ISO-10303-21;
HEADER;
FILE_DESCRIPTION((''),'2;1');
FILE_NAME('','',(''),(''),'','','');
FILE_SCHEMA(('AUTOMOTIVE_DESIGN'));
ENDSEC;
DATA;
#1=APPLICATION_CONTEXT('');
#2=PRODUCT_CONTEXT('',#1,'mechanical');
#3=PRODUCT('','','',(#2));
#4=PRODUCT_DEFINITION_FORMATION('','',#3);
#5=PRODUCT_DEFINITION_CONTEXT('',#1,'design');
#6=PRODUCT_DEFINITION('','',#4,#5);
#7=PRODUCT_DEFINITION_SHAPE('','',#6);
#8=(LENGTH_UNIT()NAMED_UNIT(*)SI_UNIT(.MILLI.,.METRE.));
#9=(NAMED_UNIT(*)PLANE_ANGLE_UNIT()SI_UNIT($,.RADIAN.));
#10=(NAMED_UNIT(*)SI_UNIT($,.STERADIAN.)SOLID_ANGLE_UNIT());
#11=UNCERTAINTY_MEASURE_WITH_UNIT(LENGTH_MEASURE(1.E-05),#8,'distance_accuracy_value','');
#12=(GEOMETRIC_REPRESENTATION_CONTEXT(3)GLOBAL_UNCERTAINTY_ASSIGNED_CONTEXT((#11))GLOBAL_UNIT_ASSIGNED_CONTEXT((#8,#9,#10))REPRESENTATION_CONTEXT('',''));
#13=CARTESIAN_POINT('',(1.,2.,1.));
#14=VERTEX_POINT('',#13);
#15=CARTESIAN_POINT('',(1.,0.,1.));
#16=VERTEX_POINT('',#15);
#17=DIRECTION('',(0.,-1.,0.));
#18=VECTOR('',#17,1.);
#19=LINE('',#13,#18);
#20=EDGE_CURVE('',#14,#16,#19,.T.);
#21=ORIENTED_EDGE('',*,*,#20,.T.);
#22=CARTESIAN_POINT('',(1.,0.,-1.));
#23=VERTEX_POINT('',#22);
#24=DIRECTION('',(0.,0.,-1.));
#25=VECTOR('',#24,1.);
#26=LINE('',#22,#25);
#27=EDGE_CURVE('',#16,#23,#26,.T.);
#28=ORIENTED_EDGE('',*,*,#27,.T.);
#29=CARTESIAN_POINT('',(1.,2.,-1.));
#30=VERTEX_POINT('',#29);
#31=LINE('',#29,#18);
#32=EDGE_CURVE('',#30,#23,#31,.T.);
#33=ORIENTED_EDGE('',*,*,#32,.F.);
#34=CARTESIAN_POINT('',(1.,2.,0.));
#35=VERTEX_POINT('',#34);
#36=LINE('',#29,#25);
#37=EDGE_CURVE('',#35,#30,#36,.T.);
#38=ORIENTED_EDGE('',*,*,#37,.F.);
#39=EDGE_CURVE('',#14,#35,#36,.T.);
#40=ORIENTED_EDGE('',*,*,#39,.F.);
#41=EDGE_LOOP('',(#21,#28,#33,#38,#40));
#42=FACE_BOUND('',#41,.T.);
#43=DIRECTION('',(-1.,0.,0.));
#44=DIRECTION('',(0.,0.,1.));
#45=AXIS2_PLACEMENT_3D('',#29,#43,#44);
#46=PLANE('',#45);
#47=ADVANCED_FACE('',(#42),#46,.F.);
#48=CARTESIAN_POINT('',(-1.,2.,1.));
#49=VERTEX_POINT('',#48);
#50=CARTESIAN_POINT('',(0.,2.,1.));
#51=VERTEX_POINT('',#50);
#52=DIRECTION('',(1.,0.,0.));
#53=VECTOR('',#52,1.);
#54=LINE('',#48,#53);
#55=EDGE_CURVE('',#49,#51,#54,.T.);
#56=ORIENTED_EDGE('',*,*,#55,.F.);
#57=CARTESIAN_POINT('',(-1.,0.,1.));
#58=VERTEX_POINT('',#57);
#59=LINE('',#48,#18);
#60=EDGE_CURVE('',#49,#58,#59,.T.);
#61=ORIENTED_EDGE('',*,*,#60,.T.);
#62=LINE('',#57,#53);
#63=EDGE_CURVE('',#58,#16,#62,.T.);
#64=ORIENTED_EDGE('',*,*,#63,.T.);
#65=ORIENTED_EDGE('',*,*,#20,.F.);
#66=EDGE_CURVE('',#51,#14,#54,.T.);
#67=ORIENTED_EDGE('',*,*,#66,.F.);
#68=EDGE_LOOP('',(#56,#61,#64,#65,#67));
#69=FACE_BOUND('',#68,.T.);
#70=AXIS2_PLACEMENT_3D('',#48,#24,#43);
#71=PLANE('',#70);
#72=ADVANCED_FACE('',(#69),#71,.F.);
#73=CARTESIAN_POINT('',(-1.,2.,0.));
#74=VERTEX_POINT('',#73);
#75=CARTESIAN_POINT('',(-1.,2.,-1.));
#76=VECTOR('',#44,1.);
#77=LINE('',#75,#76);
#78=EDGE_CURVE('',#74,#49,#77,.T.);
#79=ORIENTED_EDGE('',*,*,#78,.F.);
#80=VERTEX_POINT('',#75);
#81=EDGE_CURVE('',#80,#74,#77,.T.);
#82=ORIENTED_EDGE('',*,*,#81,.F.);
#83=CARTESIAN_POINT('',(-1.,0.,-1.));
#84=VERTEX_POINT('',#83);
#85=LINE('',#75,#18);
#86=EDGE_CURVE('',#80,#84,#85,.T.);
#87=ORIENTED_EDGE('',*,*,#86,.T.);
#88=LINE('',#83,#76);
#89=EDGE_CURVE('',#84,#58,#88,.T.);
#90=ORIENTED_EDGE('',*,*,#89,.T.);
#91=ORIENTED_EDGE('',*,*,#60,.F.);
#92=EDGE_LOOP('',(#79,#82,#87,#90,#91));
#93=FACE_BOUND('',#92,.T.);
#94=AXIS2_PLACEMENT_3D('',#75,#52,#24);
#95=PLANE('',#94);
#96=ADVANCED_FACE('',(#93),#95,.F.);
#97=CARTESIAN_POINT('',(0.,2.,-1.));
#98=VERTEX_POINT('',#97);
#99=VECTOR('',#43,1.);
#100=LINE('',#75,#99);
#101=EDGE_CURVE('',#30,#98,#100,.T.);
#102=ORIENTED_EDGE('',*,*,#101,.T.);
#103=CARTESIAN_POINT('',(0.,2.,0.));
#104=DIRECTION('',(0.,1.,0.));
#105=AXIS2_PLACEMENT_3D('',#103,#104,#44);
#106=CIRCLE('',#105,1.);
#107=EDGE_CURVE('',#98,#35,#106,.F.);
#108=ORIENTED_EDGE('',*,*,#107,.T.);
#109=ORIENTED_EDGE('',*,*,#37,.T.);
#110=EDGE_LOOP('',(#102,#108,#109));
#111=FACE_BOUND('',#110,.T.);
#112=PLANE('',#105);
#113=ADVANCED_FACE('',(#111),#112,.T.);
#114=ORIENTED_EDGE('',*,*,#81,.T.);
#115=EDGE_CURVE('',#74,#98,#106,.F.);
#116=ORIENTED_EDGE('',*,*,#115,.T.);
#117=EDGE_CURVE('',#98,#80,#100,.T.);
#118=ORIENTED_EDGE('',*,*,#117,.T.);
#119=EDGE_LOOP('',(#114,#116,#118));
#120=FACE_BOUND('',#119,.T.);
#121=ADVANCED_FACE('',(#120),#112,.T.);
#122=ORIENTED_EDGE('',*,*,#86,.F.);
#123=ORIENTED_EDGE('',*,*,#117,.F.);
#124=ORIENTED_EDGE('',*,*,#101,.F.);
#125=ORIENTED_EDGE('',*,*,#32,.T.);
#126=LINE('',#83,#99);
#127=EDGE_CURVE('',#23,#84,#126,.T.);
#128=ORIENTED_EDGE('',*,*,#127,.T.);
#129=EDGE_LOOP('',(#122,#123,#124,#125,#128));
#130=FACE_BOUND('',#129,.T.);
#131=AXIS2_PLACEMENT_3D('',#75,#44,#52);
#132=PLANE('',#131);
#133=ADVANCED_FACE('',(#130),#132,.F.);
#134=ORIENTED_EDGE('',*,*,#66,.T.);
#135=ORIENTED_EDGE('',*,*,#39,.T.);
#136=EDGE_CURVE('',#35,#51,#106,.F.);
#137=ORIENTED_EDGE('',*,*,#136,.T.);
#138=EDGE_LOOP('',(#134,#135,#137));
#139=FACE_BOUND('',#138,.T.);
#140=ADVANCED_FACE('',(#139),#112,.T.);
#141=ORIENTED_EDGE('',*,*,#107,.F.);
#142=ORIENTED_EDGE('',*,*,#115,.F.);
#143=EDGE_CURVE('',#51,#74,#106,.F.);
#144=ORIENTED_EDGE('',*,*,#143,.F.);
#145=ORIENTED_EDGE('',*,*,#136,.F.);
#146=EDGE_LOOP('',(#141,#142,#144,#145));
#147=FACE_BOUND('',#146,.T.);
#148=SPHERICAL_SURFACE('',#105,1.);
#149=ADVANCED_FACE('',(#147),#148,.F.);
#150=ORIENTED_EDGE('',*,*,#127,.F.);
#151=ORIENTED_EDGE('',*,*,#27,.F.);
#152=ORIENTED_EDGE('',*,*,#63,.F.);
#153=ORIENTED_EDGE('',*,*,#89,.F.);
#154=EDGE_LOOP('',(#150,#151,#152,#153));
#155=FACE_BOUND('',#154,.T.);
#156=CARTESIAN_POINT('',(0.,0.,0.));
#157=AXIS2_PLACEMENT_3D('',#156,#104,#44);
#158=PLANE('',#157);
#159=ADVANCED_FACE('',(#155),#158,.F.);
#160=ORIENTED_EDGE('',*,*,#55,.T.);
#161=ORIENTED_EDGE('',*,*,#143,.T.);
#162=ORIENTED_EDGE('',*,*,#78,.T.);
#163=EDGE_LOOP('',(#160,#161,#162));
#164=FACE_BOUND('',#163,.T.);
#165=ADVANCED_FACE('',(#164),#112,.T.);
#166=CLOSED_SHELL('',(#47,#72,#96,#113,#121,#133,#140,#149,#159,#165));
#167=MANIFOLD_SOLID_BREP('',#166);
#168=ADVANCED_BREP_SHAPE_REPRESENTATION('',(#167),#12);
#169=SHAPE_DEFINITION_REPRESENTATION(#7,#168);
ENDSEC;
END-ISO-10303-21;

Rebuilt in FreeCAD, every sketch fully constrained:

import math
import FreeCAD as App
import Part
import Sketcher

V = App.Vector


def add_polygon(sketch, points):
    """Adds a closed chain of lines whose ends are joined by coincident constraints."""
    first, n = sketch.GeometryCount, len(points)
    for a, b in zip(points, points[1:] + points[:1]):
        sketch.addGeometry(Part.LineSegment(App.Vector(*a, 0), App.Vector(*b, 0)), False)
    for i in range(n):
        sketch.addConstraint(Sketcher.Constraint("Coincident", first + i, 2, first + (i + 1) % n, 1))

doc = App.newDocument("Part")
body = doc.addObject("PartDesign::Body", "Body")

# Sketch on XZ plane
sketch1 = doc.addObject("Sketcher::SketchObject", "Sketch")
body.addObject(sketch1)
sketch1.AttachmentSupport = (doc.XZ_Plane, [""])
sketch1.MapMode = "FlatFace"
add_polygon(sketch1, [(-1, -1), (-1, 1), (1, 1), (1, -1)])  # lines 0-3
sketch1.addConstraint(Sketcher.Constraint("Vertical", 0))
sketch1.addConstraint(Sketcher.Constraint("Horizontal", 1))
sketch1.addConstraint(Sketcher.Constraint("Vertical", 2))
sketch1.addConstraint(Sketcher.Constraint("Horizontal", 3))
sketch1.addConstraint(Sketcher.Constraint("Symmetric", 0, 2, 2, 2, -1, 1))
sketch1.addConstraint(Sketcher.Constraint("Equal", 3, 0))
sketch1.addConstraint(Sketcher.Constraint("DistanceX", 1, 1, 1, 2, 2.0))
pad1 = doc.addObject("PartDesign::Pad", "Pad")
body.addObject(pad1)
pad1.Profile = sketch1
pad1.Length = 2
pad1.Reversed = True

# Sketch on XZ plane
sketch2 = doc.addObject("Sketcher::SketchObject", "Sketch001")
body.addObject(sketch2)
sketch2.AttachmentSupport = (doc.XZ_Plane, [""])
sketch2.MapMode = "FlatFace"
sketch2.AttachmentOffset = App.Placement(V(0, 0, -2), App.Rotation())
sketch2.addGeometry(Part.LineSegment(V(0, 1, 0), V(0, -1, 0)), False)
sketch2.addGeometry(Part.ArcOfCircle(Part.Circle(V(0, 0, 0), V(0, 0, 1), 1), math.radians(90), math.radians(270)), False)
sketch2.addConstraint(Sketcher.Constraint("Coincident", 0, 1, 1, 1))
sketch2.addConstraint(Sketcher.Constraint("Coincident", 1, 2, 0, 2))
sketch2.addConstraint(Sketcher.Constraint("Vertical", 0))
sketch2.addConstraint(Sketcher.Constraint("Coincident", 1, 3, -1, 1))
sketch2.addConstraint(Sketcher.Constraint("PointOnObject", 0, 1, -2))
sketch2.addConstraint(Sketcher.Constraint("Radius", 1, 1.0))
groove = doc.addObject("PartDesign::Groove", "Groove")
body.addObject(groove)
groove.Profile = sketch2
groove.ReferenceAxis = (sketch2, ["V_Axis"])
groove.Angle = 360

doc.recompute()
